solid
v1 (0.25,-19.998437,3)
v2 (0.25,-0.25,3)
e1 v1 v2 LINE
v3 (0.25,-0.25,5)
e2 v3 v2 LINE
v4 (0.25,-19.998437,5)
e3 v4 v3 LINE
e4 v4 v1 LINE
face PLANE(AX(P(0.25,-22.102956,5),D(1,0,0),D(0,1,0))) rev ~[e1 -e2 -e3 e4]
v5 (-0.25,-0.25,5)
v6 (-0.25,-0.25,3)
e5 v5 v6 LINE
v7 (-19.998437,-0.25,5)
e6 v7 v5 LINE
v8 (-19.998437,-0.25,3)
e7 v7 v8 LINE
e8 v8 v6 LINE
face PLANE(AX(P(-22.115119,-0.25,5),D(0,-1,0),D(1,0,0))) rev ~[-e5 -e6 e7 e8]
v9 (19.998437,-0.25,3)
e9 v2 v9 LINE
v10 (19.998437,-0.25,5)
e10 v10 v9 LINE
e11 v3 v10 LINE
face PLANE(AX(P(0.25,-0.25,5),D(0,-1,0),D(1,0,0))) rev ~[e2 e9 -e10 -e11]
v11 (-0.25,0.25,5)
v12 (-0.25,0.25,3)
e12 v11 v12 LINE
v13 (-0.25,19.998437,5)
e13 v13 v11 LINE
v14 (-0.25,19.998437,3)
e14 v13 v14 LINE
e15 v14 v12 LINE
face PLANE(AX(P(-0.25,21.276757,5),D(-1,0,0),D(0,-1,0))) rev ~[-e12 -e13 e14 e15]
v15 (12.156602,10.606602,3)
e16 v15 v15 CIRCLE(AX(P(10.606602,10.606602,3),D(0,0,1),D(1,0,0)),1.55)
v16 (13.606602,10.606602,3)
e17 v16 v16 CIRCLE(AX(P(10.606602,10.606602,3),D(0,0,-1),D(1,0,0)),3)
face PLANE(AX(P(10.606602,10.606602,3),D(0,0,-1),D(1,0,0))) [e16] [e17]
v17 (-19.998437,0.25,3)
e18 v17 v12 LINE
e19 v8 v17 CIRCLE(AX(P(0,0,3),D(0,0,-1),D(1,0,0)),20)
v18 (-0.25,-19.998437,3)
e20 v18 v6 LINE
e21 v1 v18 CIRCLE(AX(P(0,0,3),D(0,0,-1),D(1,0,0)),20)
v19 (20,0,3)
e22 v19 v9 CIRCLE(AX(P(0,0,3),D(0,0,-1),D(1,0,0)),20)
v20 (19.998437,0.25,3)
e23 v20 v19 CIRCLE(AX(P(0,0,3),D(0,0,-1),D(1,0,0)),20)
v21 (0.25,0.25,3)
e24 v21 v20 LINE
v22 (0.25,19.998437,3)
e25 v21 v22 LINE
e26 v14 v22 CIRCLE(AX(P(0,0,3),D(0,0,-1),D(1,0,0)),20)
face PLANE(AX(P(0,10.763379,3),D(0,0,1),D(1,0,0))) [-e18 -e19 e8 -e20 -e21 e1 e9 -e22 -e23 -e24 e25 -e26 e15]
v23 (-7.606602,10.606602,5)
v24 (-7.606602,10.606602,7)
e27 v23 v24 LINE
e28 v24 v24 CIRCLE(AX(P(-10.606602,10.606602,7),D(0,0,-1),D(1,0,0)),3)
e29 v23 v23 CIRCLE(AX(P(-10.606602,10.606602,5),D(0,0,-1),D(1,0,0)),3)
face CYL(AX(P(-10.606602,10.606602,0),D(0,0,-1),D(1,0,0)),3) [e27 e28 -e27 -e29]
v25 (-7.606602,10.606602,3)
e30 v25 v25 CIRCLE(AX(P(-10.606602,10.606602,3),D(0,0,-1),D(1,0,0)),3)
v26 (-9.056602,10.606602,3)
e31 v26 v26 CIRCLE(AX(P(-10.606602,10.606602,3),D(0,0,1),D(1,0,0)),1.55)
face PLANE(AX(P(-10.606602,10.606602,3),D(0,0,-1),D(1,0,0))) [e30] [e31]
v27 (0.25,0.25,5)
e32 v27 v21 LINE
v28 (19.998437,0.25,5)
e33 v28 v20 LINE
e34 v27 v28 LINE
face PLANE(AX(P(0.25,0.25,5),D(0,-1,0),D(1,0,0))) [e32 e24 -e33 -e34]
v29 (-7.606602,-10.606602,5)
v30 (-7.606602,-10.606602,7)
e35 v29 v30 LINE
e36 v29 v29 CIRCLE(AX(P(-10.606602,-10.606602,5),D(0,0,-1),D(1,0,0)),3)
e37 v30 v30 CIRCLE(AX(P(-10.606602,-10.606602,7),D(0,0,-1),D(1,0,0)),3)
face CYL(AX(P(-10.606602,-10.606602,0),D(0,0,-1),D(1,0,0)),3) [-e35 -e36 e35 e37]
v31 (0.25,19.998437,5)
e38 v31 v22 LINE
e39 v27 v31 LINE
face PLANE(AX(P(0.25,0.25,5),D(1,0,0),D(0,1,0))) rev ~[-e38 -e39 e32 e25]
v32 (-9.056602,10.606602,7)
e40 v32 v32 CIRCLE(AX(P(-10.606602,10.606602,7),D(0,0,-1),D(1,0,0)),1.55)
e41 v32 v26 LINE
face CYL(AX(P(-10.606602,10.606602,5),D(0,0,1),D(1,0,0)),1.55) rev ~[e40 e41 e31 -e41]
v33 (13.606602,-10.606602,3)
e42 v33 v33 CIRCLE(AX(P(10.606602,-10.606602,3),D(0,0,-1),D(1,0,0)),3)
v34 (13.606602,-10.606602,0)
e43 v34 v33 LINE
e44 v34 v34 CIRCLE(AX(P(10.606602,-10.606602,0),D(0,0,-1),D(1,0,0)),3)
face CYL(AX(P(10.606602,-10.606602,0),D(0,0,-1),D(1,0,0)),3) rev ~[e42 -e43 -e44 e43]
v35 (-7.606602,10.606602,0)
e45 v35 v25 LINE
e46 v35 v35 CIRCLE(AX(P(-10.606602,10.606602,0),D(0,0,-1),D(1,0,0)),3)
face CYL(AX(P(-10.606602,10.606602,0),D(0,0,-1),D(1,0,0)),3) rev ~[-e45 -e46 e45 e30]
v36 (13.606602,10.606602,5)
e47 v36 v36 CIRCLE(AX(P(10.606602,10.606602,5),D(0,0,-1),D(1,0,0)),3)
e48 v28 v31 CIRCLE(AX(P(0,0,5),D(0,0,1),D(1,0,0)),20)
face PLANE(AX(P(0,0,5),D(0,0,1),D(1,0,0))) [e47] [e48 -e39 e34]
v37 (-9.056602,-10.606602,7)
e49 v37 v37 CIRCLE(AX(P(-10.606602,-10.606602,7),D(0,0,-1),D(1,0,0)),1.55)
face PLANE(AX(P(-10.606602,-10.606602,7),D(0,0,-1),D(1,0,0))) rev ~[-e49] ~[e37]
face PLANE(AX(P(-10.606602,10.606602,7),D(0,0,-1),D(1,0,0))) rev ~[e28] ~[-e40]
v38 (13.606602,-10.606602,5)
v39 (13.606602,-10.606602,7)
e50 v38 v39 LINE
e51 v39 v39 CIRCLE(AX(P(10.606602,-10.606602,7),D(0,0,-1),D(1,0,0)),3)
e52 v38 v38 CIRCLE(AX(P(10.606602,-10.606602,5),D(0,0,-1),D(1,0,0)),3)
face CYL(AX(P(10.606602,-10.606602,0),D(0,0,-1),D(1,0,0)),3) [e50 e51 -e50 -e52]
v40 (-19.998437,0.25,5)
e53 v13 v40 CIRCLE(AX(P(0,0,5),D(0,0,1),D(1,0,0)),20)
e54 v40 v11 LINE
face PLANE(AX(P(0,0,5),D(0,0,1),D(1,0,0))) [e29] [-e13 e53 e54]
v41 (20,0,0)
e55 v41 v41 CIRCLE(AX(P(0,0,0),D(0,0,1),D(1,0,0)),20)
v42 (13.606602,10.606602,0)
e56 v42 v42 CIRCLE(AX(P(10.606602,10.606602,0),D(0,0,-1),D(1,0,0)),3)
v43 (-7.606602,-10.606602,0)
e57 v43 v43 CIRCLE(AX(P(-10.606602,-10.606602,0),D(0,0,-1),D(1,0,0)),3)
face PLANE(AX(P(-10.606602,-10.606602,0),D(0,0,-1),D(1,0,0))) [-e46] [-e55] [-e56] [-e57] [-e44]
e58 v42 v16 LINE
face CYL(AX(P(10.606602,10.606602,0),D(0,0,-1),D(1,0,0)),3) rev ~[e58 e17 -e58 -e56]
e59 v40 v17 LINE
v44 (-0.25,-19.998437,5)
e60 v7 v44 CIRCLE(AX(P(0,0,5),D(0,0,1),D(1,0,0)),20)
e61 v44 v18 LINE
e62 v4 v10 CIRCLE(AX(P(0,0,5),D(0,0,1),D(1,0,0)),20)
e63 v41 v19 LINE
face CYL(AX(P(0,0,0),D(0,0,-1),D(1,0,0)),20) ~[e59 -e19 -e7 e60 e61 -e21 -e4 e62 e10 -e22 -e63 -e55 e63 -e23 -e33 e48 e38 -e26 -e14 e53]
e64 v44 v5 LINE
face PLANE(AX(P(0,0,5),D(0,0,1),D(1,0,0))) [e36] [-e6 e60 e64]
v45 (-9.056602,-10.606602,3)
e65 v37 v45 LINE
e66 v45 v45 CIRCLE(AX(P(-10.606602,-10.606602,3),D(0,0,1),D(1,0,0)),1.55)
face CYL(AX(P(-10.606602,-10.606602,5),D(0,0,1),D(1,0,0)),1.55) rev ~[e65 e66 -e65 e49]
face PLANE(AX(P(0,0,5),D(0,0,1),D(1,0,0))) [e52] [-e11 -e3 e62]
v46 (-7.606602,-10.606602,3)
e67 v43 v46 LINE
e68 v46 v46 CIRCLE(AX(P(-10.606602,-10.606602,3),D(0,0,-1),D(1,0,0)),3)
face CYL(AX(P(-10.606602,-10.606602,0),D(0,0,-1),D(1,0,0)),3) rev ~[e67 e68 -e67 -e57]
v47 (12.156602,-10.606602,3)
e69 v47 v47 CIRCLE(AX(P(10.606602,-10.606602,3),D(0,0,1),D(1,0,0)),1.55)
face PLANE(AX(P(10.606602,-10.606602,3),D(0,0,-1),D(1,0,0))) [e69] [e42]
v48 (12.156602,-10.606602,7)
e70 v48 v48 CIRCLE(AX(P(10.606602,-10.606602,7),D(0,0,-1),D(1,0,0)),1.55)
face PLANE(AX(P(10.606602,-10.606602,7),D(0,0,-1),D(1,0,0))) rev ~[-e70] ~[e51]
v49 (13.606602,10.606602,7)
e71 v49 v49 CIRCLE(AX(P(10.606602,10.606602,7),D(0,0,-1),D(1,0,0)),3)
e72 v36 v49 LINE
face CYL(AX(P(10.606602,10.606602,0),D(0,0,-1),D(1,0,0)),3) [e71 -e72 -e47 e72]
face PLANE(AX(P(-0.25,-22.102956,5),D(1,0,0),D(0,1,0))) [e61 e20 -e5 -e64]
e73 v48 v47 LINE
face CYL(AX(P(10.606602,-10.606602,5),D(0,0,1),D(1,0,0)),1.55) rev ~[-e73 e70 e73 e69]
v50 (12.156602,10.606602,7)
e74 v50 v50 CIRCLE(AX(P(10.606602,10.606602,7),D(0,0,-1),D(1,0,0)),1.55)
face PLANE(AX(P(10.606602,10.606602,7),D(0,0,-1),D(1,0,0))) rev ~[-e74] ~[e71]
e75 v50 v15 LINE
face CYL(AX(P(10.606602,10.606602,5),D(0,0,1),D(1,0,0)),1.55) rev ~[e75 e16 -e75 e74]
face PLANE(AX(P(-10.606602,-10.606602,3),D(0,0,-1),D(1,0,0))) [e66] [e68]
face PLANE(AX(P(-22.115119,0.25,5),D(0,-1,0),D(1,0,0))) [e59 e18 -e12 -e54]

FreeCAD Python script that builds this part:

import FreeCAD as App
import Part
import Sketcher

V = App.Vector
Q = App.Units.Quantity


def add_polygon(sketch, points):
    """Adds a closed chain of lines whose ends are joined by coincident constraints."""
    first, n = sketch.GeometryCount, len(points)
    for a, b in zip(points, points[1:] + points[:1]):
        sketch.addGeometry(Part.LineSegment(App.Vector(*a, 0), App.Vector(*b, 0)), False)
    for i in range(n):
        sketch.addConstraint(Sketcher.Constraint("Coincident", first + i, 2, first + (i + 1) % n, 1))

doc = App.newDocument("Part")
body = doc.addObject("PartDesign::Body", "Body")

sketch1 = body.newObject("Sketcher::SketchObject", "Sketch")
sketch1.AttachmentSupport = (doc.getObject("XY_Plane"), [""])
sketch1.MapMode = "FlatFace"
sketch1.addGeometry(Part.Circle(V(0, 0, 0), V(0, 0, 1), 20), False)
sketch1.addConstraint(Sketcher.Constraint("Coincident", 0, 3, -1, 1))
sketch1.addConstraint(Sketcher.Constraint("Diameter", 0, Q("40 mm")))
pad1 = body.newObject("PartDesign::Pad", "Pad")
pad1.Profile = sketch1
pad1.Length = 5

sketch2 = body.newObject("Sketcher::SketchObject", "Sketch001")
sketch2.AttachmentSupport = (doc.getObject("XY_Plane"), [""])
sketch2.MapMode = "FlatFace"
sketch2.AttachmentOffset = App.Placement(V(0, 0, 5), App.Rotation())
add_polygon(sketch2, [(-0.2, 21.3), (-0.2, 0.2), (-22.1, 0.2), (-22.1, -0.2), (-0.2, -0.2), (-0.2, -22.1), (0.2, -22.1), (0.2, -0.2), (23.6, -0.2), (23.6, 0.2), (0.2, 0.2), (0.2, 21.3)])
sketch2.addConstraint(Sketcher.Constraint("Vertical", 0))
sketch2.addConstraint(Sketcher.Constraint("Horizontal", 1))
sketch2.addConstraint(Sketcher.Constraint("Vertical", 2))
sketch2.addConstraint(Sketcher.Constraint("Horizontal", 3))
sketch2.addConstraint(Sketcher.Constraint("Vertical", 4))
sketch2.addConstraint(Sketcher.Constraint("Horizontal", 5))
sketch2.addConstraint(Sketcher.Constraint("Vertical", 6))
sketch2.addConstraint(Sketcher.Constraint("Horizontal", 7))
sketch2.addConstraint(Sketcher.Constraint("Vertical", 8))
sketch2.addConstraint(Sketcher.Constraint("Horizontal", 9))
sketch2.addConstraint(Sketcher.Constraint("Vertical", 10))
sketch2.addConstraint(Sketcher.Constraint("Horizontal", 11))
sketch2.addConstraint(Sketcher.Constraint("Symmetric", 0, 2, 6, 2, -1, 1))
sketch2.addConstraint(Sketcher.Constraint("Symmetric", 3, 2, 9, 2, -1, 1))
sketch2.addConstraint(Sketcher.Constraint("Symmetric", 3, 2, 6, 2, -2))
sketch2.addConstraint(Sketcher.Constraint("Equal", 11, 2))
sketch2.addConstraint(Sketcher.Constraint("DistanceX", 5, 1, 5, 2, Q("0.5 mm")))
sketch2.addConstraint(Sketcher.Constraint("DistanceX", 7, 1, 7, 2, Q("23.355898 mm")))
sketch2.addConstraint(Sketcher.Constraint("DistanceX", 1, 2, 1, 1, Q("21.865119 mm")))
sketch2.addConstraint(Sketcher.Constraint("DistanceY", 0, 2, 0, 1, Q("21.026757 mm")))
sketch2.addConstraint(Sketcher.Constraint("DistanceY", 4, 2, 4, 1, Q("21.852956 mm")))
pocket1 = body.newObject("PartDesign::Pocket", "Pocket")
pocket1.Profile = sketch2
pocket1.Length = 2

sketch3 = body.newObject("Sketcher::SketchObject", "Sketch002")
sketch3.AttachmentSupport = (doc.getObject("XY_Plane"), [""])
sketch3.MapMode = "FlatFace"
sketch3.addGeometry(Part.Circle(V(-10.6, -10.6, 0), V(0, 0, 1), 3), False)
sketch3.addGeometry(Part.Circle(V(10.6, -10.6, 0), V(0, 0, 1), 3), False)
sketch3.addGeometry(Part.Circle(V(10.6, 10.6, 0), V(0, 0, 1), 3), False)
sketch3.addGeometry(Part.Circle(V(-10.6, 10.6, 0), V(0, 0, 1), 3), False)
sketch3.addConstraint(Sketcher.Constraint("Equal", 0, 1))
sketch3.addConstraint(Sketcher.Constraint("Equal", 1, 2))
sketch3.addConstraint(Sketcher.Constraint("Equal", 2, 3))
sketch3.addConstraint(Sketcher.Constraint("Symmetric", 0, 3, 2, 3, -1, 1))
sketch3.addConstraint(Sketcher.Constraint("Symmetric", 1, 3, 3, 3, -1, 1))
sketch3.addConstraint(Sketcher.Constraint("Symmetric", 0, 3, 1, 3, -2))
sketch3.addConstraint(Sketcher.Constraint("Diameter", 0, Q("6 mm")))
sketch3.addConstraint(Sketcher.Constraint("DistanceX", 0, 3, -1, 1, Q("10.606602 mm")))
sketch3.addConstraint(Sketcher.Constraint("DistanceY", 0, 3, -1, 1, Q("10.606602 mm")))
pad2 = body.newObject("PartDesign::Pad", "Pad001")
pad2.Profile = sketch3
pad2.Length = 7

sketch4 = body.newObject("Sketcher::SketchObject", "Sketch003")
sketch4.AttachmentSupport = (doc.getObject("XY_Plane"), [""])
sketch4.MapMode = "FlatFace"
sketch4.addGeometry(Part.Circle(V(-10.6, -10.6, 0), V(0, 0, 1), 3), False)
sketch4.addGeometry(Part.Circle(V(10.6, -10.6, 0), V(0, 0, 1), 3), False)
sketch4.addGeometry(Part.Circle(V(10.6, 10.6, 0), V(0, 0, 1), 3), False)
sketch4.addGeometry(Part.Circle(V(-10.6, 10.6, 0), V(0, 0, 1), 3), False)
sketch4.addConstraint(Sketcher.Constraint("Equal", 0, 1))
sketch4.addConstraint(Sketcher.Constraint("Equal", 1, 2))
sketch4.addConstraint(Sketcher.Constraint("Equal", 2, 3))
sketch4.addConstraint(Sketcher.Constraint("Symmetric", 0, 3, 2, 3, -1, 1))
sketch4.addConstraint(Sketcher.Constraint("Symmetric", 1, 3, 3, 3, -1, 1))
sketch4.addConstraint(Sketcher.Constraint("Symmetric", 0, 3, 1, 3, -2))
sketch4.addConstraint(Sketcher.Constraint("Diameter", 0, Q("6 mm")))
sketch4.addConstraint(Sketcher.Constraint("DistanceX", 0, 3, -1, 1, Q("10.606602 mm")))
sketch4.addConstraint(Sketcher.Constraint("DistanceY", 0, 3, -1, 1, Q("10.606602 mm")))
pocket2 = body.newObject("PartDesign::Pocket", "Pocket001")
pocket2.Profile = sketch4
pocket2.Length = 3
pocket2.Reversed = True

sketch5 = body.newObject("Sketcher::SketchObject", "Sketch004")
sketch5.AttachmentSupport = (doc.getObject("XY_Plane"), [""])
sketch5.MapMode = "FlatFace"
sketch5.AttachmentOffset = App.Placement(V(0, 0, 5), App.Rotation())
sketch5.addGeometry(Part.Circle(V(10.6, -10.6, 0), V(0, 0, 1), 1.6), False)
sketch5.addGeometry(Part.Circle(V(10.6, 10.6, 0), V(0, 0, 1), 1.6), False)
sketch5.addGeometry(Part.Circle(V(-10.6, 10.6, 0), V(0, 0, 1), 1.6), False)
sketch5.addGeometry(Part.Circle(V(-10.6, -10.6, 0), V(0, 0, 1), 1.6), False)
sketch5.addConstraint(Sketcher.Constraint("Equal", 0, 1))
sketch5.addConstraint(Sketcher.Constraint("Equal", 1, 2))
sketch5.addConstraint(Sketcher.Constraint("Equal", 2, 3))
sketch5.addConstraint(Sketcher.Constraint("Symmetric", 0, 3, 2, 3, -1, 1))
sketch5.addConstraint(Sketcher.Constraint("Symmetric", 1, 3, 3, 3, -1, 1))
sketch5.addConstraint(Sketcher.Constraint("Symmetric", 1, 3, 2, 3, -2))
sketch5.addConstraint(Sketcher.Constraint("Diameter", 0, Q("3.1 mm")))
sketch5.addConstraint(Sketcher.Constraint("DistanceX", -1, 1, 0, 3, Q("10.606602 mm")))
sketch5.addConstraint(Sketcher.Constraint("DistanceY", 0, 3, -1, 1, Q("10.606602 mm")))
pocket3 = body.newObject("PartDesign::Pocket", "Pocket002")
pocket3.Profile = sketch5
pocket3.Type = "ThroughAll"

sketch6 = body.newObject("Sketcher::SketchObject", "Sketch005")
sketch6.AttachmentSupport = (doc.getObject("XY_Plane"), [""])
sketch6.MapMode = "FlatFace"
sketch6.AttachmentOffset = App.Placement(V(0, 0, 5), App.Rotation())
sketch6.addGeometry(Part.Circle(V(10.6, -10.6, 0), V(0, 0, 1), 1.6), False)
sketch6.addGeometry(Part.Circle(V(10.6, 10.6, 0), V(0, 0, 1), 1.6), False)
sketch6.addGeometry(Part.Circle(V(-10.6, 10.6, 0), V(0, 0, 1), 1.6), False)
sketch6.addGeometry(Part.Circle(V(-10.6, -10.6, 0), V(0, 0, 1), 1.6), False)
sketch6.addConstraint(Sketcher.Constraint("Equal", 0, 1))
sketch6.addConstraint(Sketcher.Constraint("Equal", 1, 2))
sketch6.addConstraint(Sketcher.Constraint("Equal", 2, 3))
sketch6.addConstraint(Sketcher.Constraint("Symmetric", 0, 3, 2, 3, -1, 1))
sketch6.addConstraint(Sketcher.Constraint("Symmetric", 1, 3, 3, 3, -1, 1))
sketch6.addConstraint(Sketcher.Constraint("Symmetric", 1, 3, 2, 3, -2))
sketch6.addConstraint(Sketcher.Constraint("Diameter", 0, Q("3.1 mm")))
sketch6.addConstraint(Sketcher.Constraint("DistanceX", -1, 1, 0, 3, Q("10.606602 mm")))
sketch6.addConstraint(Sketcher.Constraint("DistanceY", 0, 3, -1, 1, Q("10.606602 mm")))
pocket4 = body.newObject("PartDesign::Pocket", "Pocket003")
pocket4.Profile = sketch6
pocket4.Type = "ThroughAll"
pocket4.Reversed = True

doc.recompute()
